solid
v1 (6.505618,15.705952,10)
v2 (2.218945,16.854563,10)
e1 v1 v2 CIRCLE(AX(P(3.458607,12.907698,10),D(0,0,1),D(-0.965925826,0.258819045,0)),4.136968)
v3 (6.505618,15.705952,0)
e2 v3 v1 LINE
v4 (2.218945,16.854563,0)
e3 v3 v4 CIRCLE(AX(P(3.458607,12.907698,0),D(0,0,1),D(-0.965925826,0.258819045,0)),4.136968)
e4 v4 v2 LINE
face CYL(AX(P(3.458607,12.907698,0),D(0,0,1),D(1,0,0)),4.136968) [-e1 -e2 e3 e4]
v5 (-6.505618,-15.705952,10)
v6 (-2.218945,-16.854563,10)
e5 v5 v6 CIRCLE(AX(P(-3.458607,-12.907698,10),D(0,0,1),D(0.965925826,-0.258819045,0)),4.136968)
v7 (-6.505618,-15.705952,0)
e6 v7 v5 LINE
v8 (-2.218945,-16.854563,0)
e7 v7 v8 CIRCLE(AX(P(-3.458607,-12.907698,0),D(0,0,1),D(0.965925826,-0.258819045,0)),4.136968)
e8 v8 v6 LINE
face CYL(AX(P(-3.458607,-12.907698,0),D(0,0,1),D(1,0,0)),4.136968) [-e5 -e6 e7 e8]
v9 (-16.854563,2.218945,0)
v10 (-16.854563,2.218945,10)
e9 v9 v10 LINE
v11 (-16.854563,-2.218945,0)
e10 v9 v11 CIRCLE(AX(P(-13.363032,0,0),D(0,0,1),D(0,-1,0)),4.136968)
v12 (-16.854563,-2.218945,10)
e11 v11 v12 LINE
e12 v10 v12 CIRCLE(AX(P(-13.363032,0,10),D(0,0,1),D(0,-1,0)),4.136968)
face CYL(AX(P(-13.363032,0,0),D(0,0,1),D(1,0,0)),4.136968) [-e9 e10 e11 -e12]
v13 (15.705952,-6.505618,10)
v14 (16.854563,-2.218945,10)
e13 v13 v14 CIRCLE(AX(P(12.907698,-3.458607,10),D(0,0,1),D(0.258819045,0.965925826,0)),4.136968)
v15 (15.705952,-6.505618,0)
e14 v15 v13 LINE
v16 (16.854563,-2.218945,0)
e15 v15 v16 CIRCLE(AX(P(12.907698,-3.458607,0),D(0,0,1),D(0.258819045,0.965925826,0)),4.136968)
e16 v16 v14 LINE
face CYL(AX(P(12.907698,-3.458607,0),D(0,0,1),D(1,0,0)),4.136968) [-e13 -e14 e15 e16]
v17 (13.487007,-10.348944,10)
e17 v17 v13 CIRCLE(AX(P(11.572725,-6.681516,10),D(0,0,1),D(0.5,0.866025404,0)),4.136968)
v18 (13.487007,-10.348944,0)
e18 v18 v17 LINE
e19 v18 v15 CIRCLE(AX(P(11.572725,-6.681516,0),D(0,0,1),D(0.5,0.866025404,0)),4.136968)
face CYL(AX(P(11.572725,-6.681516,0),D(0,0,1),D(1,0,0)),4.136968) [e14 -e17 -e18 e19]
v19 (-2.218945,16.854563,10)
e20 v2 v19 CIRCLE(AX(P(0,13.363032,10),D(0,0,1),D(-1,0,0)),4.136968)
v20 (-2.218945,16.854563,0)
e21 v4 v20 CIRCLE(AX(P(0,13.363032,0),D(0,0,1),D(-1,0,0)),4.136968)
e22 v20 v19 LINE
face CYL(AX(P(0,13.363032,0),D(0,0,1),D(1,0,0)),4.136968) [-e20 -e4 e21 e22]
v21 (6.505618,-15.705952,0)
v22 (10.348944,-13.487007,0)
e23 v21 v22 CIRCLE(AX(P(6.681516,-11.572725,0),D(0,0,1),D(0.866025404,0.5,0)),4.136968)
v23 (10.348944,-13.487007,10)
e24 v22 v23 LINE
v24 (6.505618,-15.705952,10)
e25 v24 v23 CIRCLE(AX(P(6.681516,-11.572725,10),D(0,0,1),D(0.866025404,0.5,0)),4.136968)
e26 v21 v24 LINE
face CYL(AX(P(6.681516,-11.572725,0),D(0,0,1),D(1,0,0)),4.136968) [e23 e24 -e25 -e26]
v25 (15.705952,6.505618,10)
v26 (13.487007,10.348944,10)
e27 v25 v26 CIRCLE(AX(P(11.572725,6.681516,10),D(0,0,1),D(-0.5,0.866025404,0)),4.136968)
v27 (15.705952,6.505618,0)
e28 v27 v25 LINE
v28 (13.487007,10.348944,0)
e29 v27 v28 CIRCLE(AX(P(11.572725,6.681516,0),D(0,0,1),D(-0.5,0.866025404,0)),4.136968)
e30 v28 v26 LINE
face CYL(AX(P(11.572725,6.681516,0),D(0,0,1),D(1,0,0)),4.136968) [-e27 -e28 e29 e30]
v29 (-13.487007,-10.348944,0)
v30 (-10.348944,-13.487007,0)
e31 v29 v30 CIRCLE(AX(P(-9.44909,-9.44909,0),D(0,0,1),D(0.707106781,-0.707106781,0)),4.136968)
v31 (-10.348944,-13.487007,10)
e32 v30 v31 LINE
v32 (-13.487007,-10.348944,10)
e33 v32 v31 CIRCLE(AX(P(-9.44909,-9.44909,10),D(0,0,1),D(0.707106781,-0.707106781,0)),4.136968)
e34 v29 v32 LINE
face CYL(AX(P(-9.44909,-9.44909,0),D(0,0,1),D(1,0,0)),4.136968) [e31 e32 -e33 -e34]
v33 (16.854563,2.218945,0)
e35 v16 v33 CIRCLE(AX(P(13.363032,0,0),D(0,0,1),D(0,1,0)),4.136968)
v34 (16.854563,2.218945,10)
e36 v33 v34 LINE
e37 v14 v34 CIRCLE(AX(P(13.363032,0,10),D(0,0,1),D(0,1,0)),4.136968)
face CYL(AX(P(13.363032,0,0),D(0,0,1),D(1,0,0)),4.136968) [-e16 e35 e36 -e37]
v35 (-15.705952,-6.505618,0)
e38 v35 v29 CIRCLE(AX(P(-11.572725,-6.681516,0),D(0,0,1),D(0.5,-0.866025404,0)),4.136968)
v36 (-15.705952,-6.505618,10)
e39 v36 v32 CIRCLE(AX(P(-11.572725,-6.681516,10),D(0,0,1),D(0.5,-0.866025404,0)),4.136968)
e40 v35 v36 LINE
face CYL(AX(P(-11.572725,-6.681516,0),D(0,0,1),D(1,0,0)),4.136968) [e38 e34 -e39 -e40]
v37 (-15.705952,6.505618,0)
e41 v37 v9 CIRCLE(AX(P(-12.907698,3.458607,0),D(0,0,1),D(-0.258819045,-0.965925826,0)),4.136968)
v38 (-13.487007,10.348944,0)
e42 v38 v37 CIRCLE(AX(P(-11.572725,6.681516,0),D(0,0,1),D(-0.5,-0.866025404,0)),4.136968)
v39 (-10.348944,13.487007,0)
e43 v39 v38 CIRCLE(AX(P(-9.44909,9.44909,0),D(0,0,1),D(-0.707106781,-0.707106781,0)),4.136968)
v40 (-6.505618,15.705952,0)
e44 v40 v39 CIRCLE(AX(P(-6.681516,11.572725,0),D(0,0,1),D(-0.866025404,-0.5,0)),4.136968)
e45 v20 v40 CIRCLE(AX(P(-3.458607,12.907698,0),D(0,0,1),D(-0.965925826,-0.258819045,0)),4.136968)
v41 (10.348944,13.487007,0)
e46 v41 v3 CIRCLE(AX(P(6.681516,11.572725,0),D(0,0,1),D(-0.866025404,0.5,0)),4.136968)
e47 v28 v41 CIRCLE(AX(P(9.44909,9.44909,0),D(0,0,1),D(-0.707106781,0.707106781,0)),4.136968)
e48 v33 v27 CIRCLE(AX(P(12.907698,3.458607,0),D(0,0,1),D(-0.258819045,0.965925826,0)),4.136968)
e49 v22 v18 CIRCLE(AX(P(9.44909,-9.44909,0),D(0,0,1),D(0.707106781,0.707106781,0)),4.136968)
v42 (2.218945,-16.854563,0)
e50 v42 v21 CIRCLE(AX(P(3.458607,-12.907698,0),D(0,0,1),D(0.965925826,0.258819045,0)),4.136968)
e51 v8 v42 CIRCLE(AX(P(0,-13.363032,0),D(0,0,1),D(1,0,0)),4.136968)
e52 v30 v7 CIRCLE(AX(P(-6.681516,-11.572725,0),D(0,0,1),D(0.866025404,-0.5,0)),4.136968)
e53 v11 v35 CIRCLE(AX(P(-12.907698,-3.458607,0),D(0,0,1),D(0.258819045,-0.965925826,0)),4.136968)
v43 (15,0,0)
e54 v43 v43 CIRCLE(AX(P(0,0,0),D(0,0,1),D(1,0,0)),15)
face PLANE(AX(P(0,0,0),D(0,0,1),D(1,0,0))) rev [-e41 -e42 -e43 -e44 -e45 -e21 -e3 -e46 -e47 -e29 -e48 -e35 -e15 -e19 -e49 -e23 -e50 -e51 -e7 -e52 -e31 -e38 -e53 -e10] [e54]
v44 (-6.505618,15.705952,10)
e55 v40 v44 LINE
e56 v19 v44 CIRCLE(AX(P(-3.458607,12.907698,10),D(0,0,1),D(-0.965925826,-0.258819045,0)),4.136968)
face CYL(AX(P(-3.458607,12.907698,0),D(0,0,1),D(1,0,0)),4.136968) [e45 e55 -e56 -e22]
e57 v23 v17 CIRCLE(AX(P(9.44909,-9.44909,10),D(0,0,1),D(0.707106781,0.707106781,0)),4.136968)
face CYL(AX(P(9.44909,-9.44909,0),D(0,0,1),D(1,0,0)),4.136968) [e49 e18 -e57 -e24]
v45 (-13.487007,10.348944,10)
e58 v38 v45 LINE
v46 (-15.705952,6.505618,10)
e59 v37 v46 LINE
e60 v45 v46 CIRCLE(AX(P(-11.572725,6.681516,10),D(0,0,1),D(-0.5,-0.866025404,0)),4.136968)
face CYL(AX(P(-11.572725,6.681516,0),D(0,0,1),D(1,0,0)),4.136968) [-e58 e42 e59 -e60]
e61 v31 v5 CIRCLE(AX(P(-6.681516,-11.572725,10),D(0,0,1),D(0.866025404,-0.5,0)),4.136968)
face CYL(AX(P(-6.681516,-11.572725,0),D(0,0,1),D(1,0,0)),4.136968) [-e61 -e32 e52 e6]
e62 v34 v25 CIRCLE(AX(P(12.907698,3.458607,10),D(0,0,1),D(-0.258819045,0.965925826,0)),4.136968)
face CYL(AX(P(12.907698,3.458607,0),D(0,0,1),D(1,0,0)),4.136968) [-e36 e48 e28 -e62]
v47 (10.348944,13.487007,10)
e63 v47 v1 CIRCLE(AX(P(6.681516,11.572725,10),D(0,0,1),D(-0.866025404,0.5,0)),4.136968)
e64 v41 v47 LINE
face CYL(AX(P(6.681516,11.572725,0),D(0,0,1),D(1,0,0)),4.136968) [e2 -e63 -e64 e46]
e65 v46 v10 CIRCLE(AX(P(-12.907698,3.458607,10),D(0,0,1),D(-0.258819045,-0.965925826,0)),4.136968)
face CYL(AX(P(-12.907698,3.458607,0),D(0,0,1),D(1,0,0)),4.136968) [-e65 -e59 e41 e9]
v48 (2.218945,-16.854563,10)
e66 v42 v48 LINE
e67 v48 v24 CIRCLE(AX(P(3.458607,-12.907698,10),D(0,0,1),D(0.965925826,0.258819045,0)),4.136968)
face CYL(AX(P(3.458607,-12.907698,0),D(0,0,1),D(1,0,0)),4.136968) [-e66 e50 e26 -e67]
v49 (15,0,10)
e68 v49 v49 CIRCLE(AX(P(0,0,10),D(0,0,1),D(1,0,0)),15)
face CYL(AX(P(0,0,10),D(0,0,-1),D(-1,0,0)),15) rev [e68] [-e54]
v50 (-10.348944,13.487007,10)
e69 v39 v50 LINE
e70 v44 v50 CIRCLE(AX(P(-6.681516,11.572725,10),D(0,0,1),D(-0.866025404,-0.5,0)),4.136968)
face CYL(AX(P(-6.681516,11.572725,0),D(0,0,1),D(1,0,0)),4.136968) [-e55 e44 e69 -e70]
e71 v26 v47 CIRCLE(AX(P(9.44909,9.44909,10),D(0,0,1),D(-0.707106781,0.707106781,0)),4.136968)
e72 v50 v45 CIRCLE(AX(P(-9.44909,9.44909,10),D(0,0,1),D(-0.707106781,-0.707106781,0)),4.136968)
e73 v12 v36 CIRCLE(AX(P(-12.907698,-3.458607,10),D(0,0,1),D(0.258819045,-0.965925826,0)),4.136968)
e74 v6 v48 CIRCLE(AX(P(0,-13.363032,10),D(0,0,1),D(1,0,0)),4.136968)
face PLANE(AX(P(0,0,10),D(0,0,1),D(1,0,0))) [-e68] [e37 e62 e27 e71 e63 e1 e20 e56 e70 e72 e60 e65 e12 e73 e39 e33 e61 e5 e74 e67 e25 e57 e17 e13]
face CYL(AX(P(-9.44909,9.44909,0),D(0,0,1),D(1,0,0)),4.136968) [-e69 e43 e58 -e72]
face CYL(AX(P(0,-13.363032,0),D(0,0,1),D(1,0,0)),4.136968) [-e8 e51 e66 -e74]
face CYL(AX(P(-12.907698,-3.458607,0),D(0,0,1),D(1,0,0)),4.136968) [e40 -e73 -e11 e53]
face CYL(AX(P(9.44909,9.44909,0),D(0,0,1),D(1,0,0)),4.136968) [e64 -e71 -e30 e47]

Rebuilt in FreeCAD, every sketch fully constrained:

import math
import FreeCAD as App
import Part
import Sketcher
from FreeCAD import Vector
Q = App.Units.Quantity

doc = App.newDocument("Part")
body = doc.addObject("PartDesign::Body", "Body")

# Sketch on XY plane
sketch1 = body.newObject("Sketcher::SketchObject", "Sketch")
sketch1.AttachmentSupport = (doc.getObject("XY_Plane"), [""])
sketch1.MapMode = "FlatFace"
sketch1.addGeometry(Part.Circle(Vector(0, 0, 0), Vector(0, 0, 1), 17), False)
sketch1.addGeometry(Part.Circle(Vector(0, 0, 0), Vector(0, 0, 1), 15), False)
sketch1.addConstraint(Sketcher.Constraint("Coincident", 0, 3, -1, 1))
sketch1.addConstraint(Sketcher.Constraint("Coincident", 1, 3, -1, 1))
sketch1.addConstraint(Sketcher.Constraint("Diameter", 0, Q("34 mm")))
sketch1.addConstraint(Sketcher.Constraint("Diameter", 1, Q("30 mm")))
pad1 = body.newObject("PartDesign::Pad", "Pad")
pad1.Profile = sketch1
pad1.Length = 10

# Sketch on XY plane
sketch2 = body.newObject("Sketcher::SketchObject", "Sketch001")
sketch2.AttachmentSupport = (doc.getObject("XY_Plane"), [""])
sketch2.MapMode = "FlatFace"
sketch2.addGeometry(Part.ArcOfCircle(Part.Circle(Vector(0, 13.4, 0), Vector(0, 0, 1), 4.1), math.radians(58), math.radians(122)), False)
sketch2.addGeometry(Part.ArcOfCircle(Part.Circle(Vector(0, 0, 0), Vector(0, 0, 1), 17), math.radians(82.5), math.radians(97.5)), False)
sketch2.addConstraint(Sketcher.Constraint("Coincident", 0, 1, 1, 1))
sketch2.addConstraint(Sketcher.Constraint("Coincident", 1, 2, 0, 2))
sketch2.addConstraint(Sketcher.Constraint("Coincident", 1, 3, -1, 1))
sketch2.addConstraint(Sketcher.Constraint("PointOnObject", 0, 3, -2))
sketch2.addConstraint(Sketcher.Constraint("Radius", 1, Q("17 mm")))
sketch2.addConstraint(Sketcher.Constraint("Radius", 0, Q("4.136968 mm")))
sketch2.addConstraint(Sketcher.Constraint("DistanceY", -1, 1, 0, 3, Q("13.363032 mm")))
pad2 = body.newObject("PartDesign::Pad", "Pad001")
pad2.Profile = sketch2
pad2.Length = 10
doc.recompute()

polarpattern = body.newObject("PartDesign::PolarPattern", "PolarPattern")
polarpattern.Originals = [pad2]
polarpattern.Axis = (doc.getObject("Z_Axis"), [""])
polarpattern.Angle = 360
polarpattern.Occurrences = 24
body.Tip = polarpattern

doc.recompute()
